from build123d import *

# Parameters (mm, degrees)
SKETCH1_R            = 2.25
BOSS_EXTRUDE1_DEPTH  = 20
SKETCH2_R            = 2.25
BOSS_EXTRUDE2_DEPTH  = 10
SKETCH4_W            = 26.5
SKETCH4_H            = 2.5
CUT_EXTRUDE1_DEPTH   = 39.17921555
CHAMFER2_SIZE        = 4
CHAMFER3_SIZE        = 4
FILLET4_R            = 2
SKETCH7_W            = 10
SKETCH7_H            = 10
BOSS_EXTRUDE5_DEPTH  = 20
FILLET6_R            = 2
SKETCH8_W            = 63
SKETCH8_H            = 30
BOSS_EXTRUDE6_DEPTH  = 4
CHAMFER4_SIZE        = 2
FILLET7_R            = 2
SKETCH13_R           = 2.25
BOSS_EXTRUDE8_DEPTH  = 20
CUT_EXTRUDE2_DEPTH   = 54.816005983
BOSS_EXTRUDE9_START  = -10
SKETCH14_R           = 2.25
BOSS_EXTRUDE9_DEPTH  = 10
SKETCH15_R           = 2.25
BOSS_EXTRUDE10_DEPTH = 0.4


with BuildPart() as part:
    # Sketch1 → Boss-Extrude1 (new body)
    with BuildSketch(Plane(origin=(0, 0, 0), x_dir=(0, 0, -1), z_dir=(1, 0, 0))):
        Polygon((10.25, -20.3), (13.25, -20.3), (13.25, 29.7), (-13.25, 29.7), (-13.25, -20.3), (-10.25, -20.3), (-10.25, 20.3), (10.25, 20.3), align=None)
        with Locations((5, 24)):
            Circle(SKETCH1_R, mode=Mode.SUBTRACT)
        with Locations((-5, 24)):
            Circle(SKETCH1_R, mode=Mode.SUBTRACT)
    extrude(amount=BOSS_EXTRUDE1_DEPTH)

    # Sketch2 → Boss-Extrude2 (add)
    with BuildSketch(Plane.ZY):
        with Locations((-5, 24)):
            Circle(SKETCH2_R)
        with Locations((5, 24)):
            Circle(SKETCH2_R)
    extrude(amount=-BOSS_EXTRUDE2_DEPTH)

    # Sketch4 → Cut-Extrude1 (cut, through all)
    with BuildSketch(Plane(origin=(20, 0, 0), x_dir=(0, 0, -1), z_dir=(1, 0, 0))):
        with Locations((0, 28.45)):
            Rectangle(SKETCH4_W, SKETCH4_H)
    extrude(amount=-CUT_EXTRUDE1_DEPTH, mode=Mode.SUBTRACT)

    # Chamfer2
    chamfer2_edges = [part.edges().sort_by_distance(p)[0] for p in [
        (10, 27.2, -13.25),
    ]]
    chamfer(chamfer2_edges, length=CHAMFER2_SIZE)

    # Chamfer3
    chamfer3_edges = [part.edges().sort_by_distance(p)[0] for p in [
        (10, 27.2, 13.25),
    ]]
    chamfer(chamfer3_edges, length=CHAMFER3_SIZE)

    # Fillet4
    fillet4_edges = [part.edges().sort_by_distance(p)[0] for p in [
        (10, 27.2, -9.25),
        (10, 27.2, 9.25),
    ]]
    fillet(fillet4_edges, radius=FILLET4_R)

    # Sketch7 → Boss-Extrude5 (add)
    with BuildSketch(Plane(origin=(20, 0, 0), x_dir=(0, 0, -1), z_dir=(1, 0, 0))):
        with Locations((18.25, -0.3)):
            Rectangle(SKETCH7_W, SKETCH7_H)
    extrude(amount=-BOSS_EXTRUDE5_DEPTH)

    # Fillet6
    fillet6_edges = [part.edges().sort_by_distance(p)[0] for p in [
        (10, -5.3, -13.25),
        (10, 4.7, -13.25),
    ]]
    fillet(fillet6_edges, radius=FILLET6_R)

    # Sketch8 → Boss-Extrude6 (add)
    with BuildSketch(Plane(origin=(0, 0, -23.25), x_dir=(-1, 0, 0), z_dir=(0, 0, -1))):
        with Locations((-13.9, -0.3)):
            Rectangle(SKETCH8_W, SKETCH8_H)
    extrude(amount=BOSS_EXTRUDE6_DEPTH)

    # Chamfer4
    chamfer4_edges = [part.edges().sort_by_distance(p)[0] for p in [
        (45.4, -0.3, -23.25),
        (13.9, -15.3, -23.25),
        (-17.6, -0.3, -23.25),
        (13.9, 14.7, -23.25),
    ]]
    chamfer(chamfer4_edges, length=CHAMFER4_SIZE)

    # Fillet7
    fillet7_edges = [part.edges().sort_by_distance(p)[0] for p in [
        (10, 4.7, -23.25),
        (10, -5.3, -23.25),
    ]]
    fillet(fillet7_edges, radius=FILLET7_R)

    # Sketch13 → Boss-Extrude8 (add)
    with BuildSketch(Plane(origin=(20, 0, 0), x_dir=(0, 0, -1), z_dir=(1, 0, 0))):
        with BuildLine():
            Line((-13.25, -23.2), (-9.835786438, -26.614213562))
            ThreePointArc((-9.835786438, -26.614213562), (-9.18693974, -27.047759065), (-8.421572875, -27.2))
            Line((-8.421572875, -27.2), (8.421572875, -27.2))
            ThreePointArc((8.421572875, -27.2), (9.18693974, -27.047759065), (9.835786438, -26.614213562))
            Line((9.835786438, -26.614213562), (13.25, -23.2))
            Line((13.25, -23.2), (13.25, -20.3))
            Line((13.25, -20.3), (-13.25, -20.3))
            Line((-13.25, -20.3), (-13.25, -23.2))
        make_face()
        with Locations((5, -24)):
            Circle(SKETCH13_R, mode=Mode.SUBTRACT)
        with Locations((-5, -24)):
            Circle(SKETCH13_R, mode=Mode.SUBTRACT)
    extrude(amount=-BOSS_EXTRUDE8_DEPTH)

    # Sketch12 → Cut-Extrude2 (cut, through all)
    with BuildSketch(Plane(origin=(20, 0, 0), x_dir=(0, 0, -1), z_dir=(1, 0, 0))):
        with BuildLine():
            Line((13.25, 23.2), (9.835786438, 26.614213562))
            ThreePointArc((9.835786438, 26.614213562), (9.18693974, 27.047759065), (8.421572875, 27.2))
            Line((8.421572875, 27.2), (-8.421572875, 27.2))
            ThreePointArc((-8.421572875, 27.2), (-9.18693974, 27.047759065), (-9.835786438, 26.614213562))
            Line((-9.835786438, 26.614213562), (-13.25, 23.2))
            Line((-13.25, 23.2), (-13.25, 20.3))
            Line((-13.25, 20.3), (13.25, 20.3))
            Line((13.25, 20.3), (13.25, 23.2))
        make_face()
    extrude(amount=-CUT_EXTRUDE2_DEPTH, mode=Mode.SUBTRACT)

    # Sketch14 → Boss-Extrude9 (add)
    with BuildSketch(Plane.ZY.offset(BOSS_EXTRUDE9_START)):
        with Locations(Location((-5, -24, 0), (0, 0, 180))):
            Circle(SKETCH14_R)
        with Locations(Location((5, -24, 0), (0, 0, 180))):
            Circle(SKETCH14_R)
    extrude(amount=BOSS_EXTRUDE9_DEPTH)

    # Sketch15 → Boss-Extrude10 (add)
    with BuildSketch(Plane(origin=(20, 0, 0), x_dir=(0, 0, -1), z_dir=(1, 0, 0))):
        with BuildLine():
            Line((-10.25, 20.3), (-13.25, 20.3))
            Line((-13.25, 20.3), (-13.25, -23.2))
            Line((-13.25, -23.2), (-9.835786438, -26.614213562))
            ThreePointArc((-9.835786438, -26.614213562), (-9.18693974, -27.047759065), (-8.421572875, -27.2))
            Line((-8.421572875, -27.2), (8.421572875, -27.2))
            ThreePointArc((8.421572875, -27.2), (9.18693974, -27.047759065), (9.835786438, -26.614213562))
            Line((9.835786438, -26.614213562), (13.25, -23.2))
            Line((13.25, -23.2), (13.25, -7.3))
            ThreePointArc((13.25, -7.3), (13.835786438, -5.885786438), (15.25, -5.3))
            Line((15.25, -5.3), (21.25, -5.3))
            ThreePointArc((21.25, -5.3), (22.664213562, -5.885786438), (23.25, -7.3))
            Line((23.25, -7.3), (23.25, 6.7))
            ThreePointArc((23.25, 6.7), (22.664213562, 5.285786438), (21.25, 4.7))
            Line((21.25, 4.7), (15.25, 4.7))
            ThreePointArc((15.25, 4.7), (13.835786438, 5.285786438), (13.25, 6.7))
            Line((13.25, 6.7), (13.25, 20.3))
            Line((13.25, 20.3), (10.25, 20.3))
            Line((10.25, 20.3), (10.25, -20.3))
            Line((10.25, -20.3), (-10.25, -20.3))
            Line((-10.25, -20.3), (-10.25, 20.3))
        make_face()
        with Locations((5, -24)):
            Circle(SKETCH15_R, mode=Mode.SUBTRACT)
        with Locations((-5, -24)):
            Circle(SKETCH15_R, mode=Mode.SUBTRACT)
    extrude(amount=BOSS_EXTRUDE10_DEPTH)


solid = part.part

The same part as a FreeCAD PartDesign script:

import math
import FreeCAD as App
import Part
import Sketcher

V = App.Vector
Q = App.Units.Quantity


def edges_at(feature, points):
    """Names of the edges that pass closest to the given points."""
    edges = feature.Shape.Edges
    near = lambda p: min(range(len(edges)), key=lambda i: edges[i].distToShape(Part.Vertex(*p))[0])
    return sorted({f"Edge{near(p) + 1}" for p in points})

doc = App.newDocument("Part")
body = doc.addObject("PartDesign::Body", "Body")

sketch1 = body.newObject("Sketcher::SketchObject", "Sketch")
sketch1.AttachmentSupport = (doc.getObject("YZ_Plane"), [""])
sketch1.MapMode = "FlatFace"
sketch1.addGeometry([
    Part.LineSegment(V(-20.3, -10.25, 0), V(-20.3, -13.25, 0)),
    Part.LineSegment(V(-20.3, -13.25, 0), V(29.7, -13.25, 0)),
    Part.LineSegment(V(29.7, -13.25, 0), V(29.7, 13.25, 0)),
    Part.LineSegment(V(29.7, 13.25, 0), V(-20.3, 13.25, 0)),
    Part.LineSegment(V(-20.3, 13.25, 0), V(-20.3, 10.25, 0)),
    Part.LineSegment(V(-20.3, 10.25, 0), V(20.3, 10.25, 0)),
    Part.LineSegment(V(20.3, 10.25, 0), V(20.3, -10.25, 0)),
    Part.LineSegment(V(20.3, -10.25, 0), V(-20.3, -10.25, 0)),
    Part.Circle(V(24, 5, 0), V(0, 0, 1), 2.25),
    Part.Circle(V(24, -5, 0), V(0, 0, 1), 2.25),
], False)
sketch1.addConstraint([
    Sketcher.Constraint("Coincident", 0, 2, 1, 1),
    Sketcher.Constraint("Coincident", 1, 2, 2, 1),
    Sketcher.Constraint("Coincident", 2, 2, 3, 1),
    Sketcher.Constraint("Coincident", 3, 2, 4, 1),
    Sketcher.Constraint("Coincident", 4, 2, 5, 1),
    Sketcher.Constraint("Coincident", 5, 2, 6, 1),
    Sketcher.Constraint("Coincident", 6, 2, 7, 1),
    Sketcher.Constraint("Coincident", 7, 2, 0, 1),
    Sketcher.Constraint("Vertical", 0),
    Sketcher.Constraint("Horizontal", 1),
    Sketcher.Constraint("Vertical", 2),
    Sketcher.Constraint("Horizontal", 3),
    Sketcher.Constraint("Vertical", 4),
    Sketcher.Constraint("Horizontal", 5),
    Sketcher.Constraint("Vertical", 6),
    Sketcher.Constraint("Horizontal", 7),
    Sketcher.Constraint("Equal", 8, 9),
    Sketcher.Constraint("Symmetric", 4, 2, 6, 2, -1, 1),
    Sketcher.Constraint("Symmetric", 8, 3, 9, 3, -1),
    Sketcher.Constraint("Symmetric", 0, 2, 3, 2, -1),
    Sketcher.Constraint("Diameter", 8, Q("4.5 mm")),
    Sketcher.Constraint("DistanceX", 1, 1, 1, 2, Q("50 mm")),
    Sketcher.Constraint("DistanceY", 0, 2, 0, 1, Q("3 mm")),
    Sketcher.Constraint("DistanceX", 5, 1, 5, 2, Q("40.6 mm")),
    Sketcher.Constraint("DistanceY", 2, 1, 2, 2, Q("26.5 mm")),
    Sketcher.Constraint("DistanceX", -1, 1, 8, 3, Q("24 mm")),
    Sketcher.Constraint("DistanceY", -1, 1, 8, 3, Q("5 mm")),
])
pad1 = body.newObject("PartDesign::Pad", "Pad")
pad1.Profile = sketch1
pad1.Length = 20

sketch2 = body.newObject("Sketcher::SketchObject", "Sketch001")
sketch2.AttachmentSupport = (doc.getObject("YZ_Plane"), [""])
sketch2.MapMode = "FlatFace"
sketch2.addGeometry([
    Part.Circle(V(24, -5, 0), V(0, 0, 1), 2.25),
    Part.Circle(V(24, 5, 0), V(0, 0, 1), 2.25),
], False)
sketch2.addConstraint([
    Sketcher.Constraint("Equal", 0, 1),
    Sketcher.Constraint("Symmetric", 0, 3, 1, 3, -1),
    Sketcher.Constraint("Diameter", 0, Q("4.5 mm")),
    Sketcher.Constraint("DistanceX", -1, 1, 0, 3, Q("24 mm")),
    Sketcher.Constraint("DistanceY", 0, 3, -1, 1, Q("5 mm")),
])
pad2 = body.newObject("PartDesign::Pad", "Pad001")
pad2.Profile = sketch2
pad2.Length = 10

sketch3 = body.newObject("Sketcher::SketchObject", "Sketch002")
sketch3.AttachmentSupport = (doc.getObject("YZ_Plane"), [""])
sketch3.MapMode = "FlatFace"
sketch3.AttachmentOffset = App.Placement(V(0, 0, 20), App.Rotation())
sketch3.addGeometry([
    Part.LineSegment(V(29.7, 13.25, 0), V(27.2, 13.25, 0)),
    Part.LineSegment(V(27.2, 13.25, 0), V(27.2, -13.25, 0)),
    Part.LineSegment(V(27.2, -13.25, 0), V(29.7, -13.25, 0)),
    Part.LineSegment(V(29.7, -13.25, 0), V(29.7, 13.25, 0)),
], False)
sketch3.addConstraint([
    Sketcher.Constraint("Coincident", 0, 2, 1, 1),
    Sketcher.Constraint("Coincident", 1, 2, 2, 1),
    Sketcher.Constraint("Coincident", 2, 2, 3, 1),
    Sketcher.Constraint("Coincident", 3, 2, 0, 1),
    Sketcher.Constraint("Horizontal", 0),
    Sketcher.Constraint("Vertical", 1),
    Sketcher.Constraint("Horizontal", 2),
    Sketcher.Constraint("Vertical", 3),
    Sketcher.Constraint("DistanceX", 0, 2, 0, 1, Q("2.5 mm")),
    Sketcher.Constraint("DistanceY", 1, 2, 1, 1, Q("26.5 mm")),
    Sketcher.Constraint("DistanceX", -1, 1, 0, 2, Q("27.2 mm")),
    Sketcher.Constraint("DistanceY", -1, 1, 0, 2, Q("13.25 mm")),
])
pocket1 = body.newObject("PartDesign::Pocket", "Pocket")
pocket1.Profile = sketch3
pocket1.Type = "ThroughAll"
doc.recompute()

chamfer = body.newObject("PartDesign::Chamfer", "Chamfer")
chamfer.Base = (pocket1, edges_at(pocket1, [(10, 27.2, -13.25)]))
chamfer.Size = 4
doc.recompute()

chamfer2 = body.newObject("PartDesign::Chamfer", "Chamfer001")
chamfer2.Base = (chamfer, edges_at(chamfer, [(10, 27.2, 13.25)]))
chamfer2.Size = 4
doc.recompute()

fillet = body.newObject("PartDesign::Fillet", "Fillet")
fillet.Base = (chamfer2, edges_at(chamfer2, [(10, 27.2, -9.25), (10, 27.2, 9.25)]))
fillet.Radius = 2

sketch4 = body.newObject("Sketcher::SketchObject", "Sketch003")
sketch4.AttachmentSupport = (doc.getObject("YZ_Plane"), [""])
sketch4.MapMode = "FlatFace"
sketch4.AttachmentOffset = App.Placement(V(0, 0, 20), App.Rotation())
sketch4.addGeometry([
    Part.LineSegment(V(4.7, -13.25, 0), V(-5.3, -13.25, 0)),
    Part.LineSegment(V(-5.3, -13.25, 0), V(-5.3, -23.25, 0)),
    Part.LineSegment(V(-5.3, -23.25, 0), V(4.7, -23.25, 0)),
    Part.LineSegment(V(4.7, -23.25, 0), V(4.7, -13.25, 0)),
], False)
sketch4.addConstraint([
    Sketcher.Constraint("Coincident", 0, 2, 1, 1),
    Sketcher.Constraint("Coincident", 1, 2, 2, 1),
    Sketcher.Constraint("Coincident", 2, 2, 3, 1),
    Sketcher.Constraint("Coincident", 3, 2, 0, 1),
    Sketcher.Constraint("Horizontal", 0),
    Sketcher.Constraint("Vertical", 1),
    Sketcher.Constraint("Horizontal", 2),
    Sketcher.Constraint("Vertical", 3),
    Sketcher.Constraint("Equal", 2, 1),
    Sketcher.Constraint("DistanceX", 0, 2, 0, 1, Q("10 mm")),
    Sketcher.Constraint("DistanceX", 0, 2, -1, 1, Q("5.3 mm")),
    Sketcher.Constraint("DistanceY", 0, 2, -1, 1, Q("13.25 mm")),
])
pad3 = body.newObject("PartDesign::Pad", "Pad002")
pad3.Profile = sketch4
pad3.Length = 20
pad3.Reversed = True
doc.recompute()

fillet2 = body.newObject("PartDesign::Fillet", "Fillet001")
fillet2.Base = (pad3, edges_at(pad3, [(10, -5.3, -13.25), (10, 4.7, -13.25)]))
fillet2.Radius = 2

sketch5 = body.newObject("Sketcher::SketchObject", "Sketch004")
sketch5.AttachmentSupport = (doc.getObject("XY_Plane"), [""])
sketch5.MapMode = "FlatFace"
sketch5.AttachmentOffset = App.Placement(V(0, 0, -23.25), App.Rotation())
sketch5.addGeometry([
    Part.LineSegment(V(45.4, 14.7, 0), V(45.4, -15.3, 0)),
    Part.LineSegment(V(45.4, -15.3, 0), V(-17.6, -15.3, 0)),
    Part.LineSegment(V(-17.6, -15.3, 0), V(-17.6, 14.7, 0)),
    Part.LineSegment(V(-17.6, 14.7, 0), V(45.4, 14.7, 0)),
], False)
sketch5.addConstraint([
    Sketcher.Constraint("Coincident", 0, 2, 1, 1),
    Sketcher.Constraint("Coincident", 1, 2, 2, 1),
    Sketcher.Constraint("Coincident", 2, 2, 3, 1),
    Sketcher.Constraint("Coincident", 3, 2, 0, 1),
    Sketcher.Constraint("Vertical", 0),
    Sketcher.Constraint("Horizontal", 1),
    Sketcher.Constraint("Vertical", 2),
    Sketcher.Constraint("Horizontal", 3),
    Sketcher.Constraint("DistanceX", 1, 2, 1, 1, Q("63 mm")),
    Sketcher.Constraint("DistanceY", 0, 2, 0, 1, Q("30 mm")),
    Sketcher.Constraint("DistanceX", -1, 1, 0, 2, Q("45.4 mm")),
    Sketcher.Constraint("DistanceY", 0, 2, -1, 1, Q("15.3 mm")),
])
pad4 = body.newObject("PartDesign::Pad", "Pad003")
pad4.Profile = sketch5
pad4.Length = 4
pad4.Reversed = True
doc.recompute()

chamfer3 = body.newObject("PartDesign::Chamfer", "Chamfer002")
chamfer3.Base = (pad4, edges_at(pad4, [
    (45.4, -0.3, -23.25),
    (13.9, -15.3, -23.25),
    (-17.6, -0.3, -23.25),
    (13.9, 14.7, -23.25),
]))
chamfer3.Size = 2
doc.recompute()

fillet3 = body.newObject("PartDesign::Fillet", "Fillet002")
fillet3.Base = (chamfer3, edges_at(chamfer3, [(10, 4.7, -23.25), (10, -5.3, -23.25)]))
fillet3.Radius = 2

sketch6 = body.newObject("Sketcher::SketchObject", "Sketch005")
sketch6.AttachmentSupport = (doc.getObject("YZ_Plane"), [""])
sketch6.MapMode = "FlatFace"
sketch6.AttachmentOffset = App.Placement(V(0, 0, 20), App.Rotation())
sketch6.addGeometry([
    Part.LineSegment(V(-23.2, 13.25, 0), V(-26.614214, 9.835786, 0)),
    Part.ArcOfCircle(Part.Circle(V(-25.2, 8.421573, 0), V(0, 0, 1), 2), math.radians(135), math.radians(180)),
    Part.LineSegment(V(-27.2, 8.421573, 0), V(-27.2, -8.421573, 0)),
    Part.ArcOfCircle(Part.Circle(V(-25.2, -8.421573, 0), V(0, 0, 1), 2), math.radians(180), math.radians(225)),
    Part.LineSegment(V(-26.614214, -9.835786, 0), V(-23.2, -13.25, 0)),
    Part.LineSegment(V(-23.2, -13.25, 0), V(-20.3, -13.25, 0)),
    Part.LineSegment(V(-20.3, -13.25, 0), V(-20.3, 13.25, 0)),
    Part.LineSegment(V(-20.3, 13.25, 0), V(-23.2, 13.25, 0)),
    Part.Circle(V(-24, 5, 0), V(0, 0, 1), 2.25),
    Part.Circle(V(-24, -5, 0), V(0, 0, 1), 2.25),
], False)
sketch6.addConstraint([
    Sketcher.Constraint("Tangent", 0, 2, 1, 1),
    Sketcher.Constraint("Tangent", 1, 2, 2, 1),
    Sketcher.Constraint("Tangent", 2, 2, 3, 1),
    Sketcher.Constraint("Tangent", 3, 2, 4, 1),
    Sketcher.Constraint("Coincident", 4, 2, 5, 1),
    Sketcher.Constraint("Coincident", 5, 2, 6, 1),
    Sketcher.Constraint("Coincident", 6, 2, 7, 1),
    Sketcher.Constraint("Coincident", 7, 2, 0, 1),
    Sketcher.Constraint("Vertical", 2),
    Sketcher.Constraint("Horizontal", 5),
    Sketcher.Constraint("Vertical", 6),
    Sketcher.Constraint("Horizontal", 7),
    Sketcher.Constraint("Equal", 1, 3),
    Sketcher.Constraint("Equal", 8, 9),
    Sketcher.Constraint("Symmetric", 8, 3, 9, 3, -1),
    Sketcher.Constraint("Symmetric", 0, 2, 3, 2, -1),
    Sketcher.Constraint("Perpendicular", 0, 4),
    Sketcher.Constraint("Vertical", 4, 2, 7, 2),
    Sketcher.Constraint("Radius", 1, Q("2 mm")),
    Sketcher.Constraint("Diameter", 8, Q("4.5 mm")),
    Sketcher.Constraint("DistanceX", 5, 1, 5, 2, Q("2.9 mm")),
    Sketcher.Constraint("DistanceY", 6, 1, 6, 2, Q("26.5 mm")),
    Sketcher.Constraint("DistanceX", 8, 3, -1, 1, Q("24 mm")),
    Sketcher.Constraint("DistanceY", -1, 1, 8, 3, Q("5 mm")),
    Sketcher.Constraint("DistanceX", 3, 3, 4, 2, Q("2 mm")),
    Sketcher.Constraint("DistanceX", 1, 3, -1, 1, Q("25.2 mm")),
])
pad5 = body.newObject("PartDesign::Pad", "Pad004")
pad5.Profile = sketch6
pad5.Length = 20
pad5.Reversed = True

sketch7 = body.newObject("Sketcher::SketchObject", "Sketch006")
sketch7.AttachmentSupport = (doc.getObject("YZ_Plane"), [""])
sketch7.MapMode = "FlatFace"
sketch7.AttachmentOffset = App.Placement(V(0, 0, 20), App.Rotation())
sketch7.addGeometry([
    Part.LineSegment(V(23.2, -13.25, 0), V(26.614214, -9.835786, 0)),
    Part.ArcOfCircle(Part.Circle(V(25.2, -8.421573, 0), V(0, 0, 1), 2), math.radians(-45), math.radians(0)),
    Part.LineSegment(V(27.2, -8.421573, 0), V(27.2, 8.421573, 0)),
    Part.ArcOfCircle(Part.Circle(V(25.2, 8.421573, 0), V(0, 0, 1), 2), math.radians(0), math.radians(45)),
    Part.LineSegment(V(26.614214, 9.835786, 0), V(23.2, 13.25, 0)),
    Part.LineSegment(V(23.2, 13.25, 0), V(20.3, 13.25, 0)),
    Part.LineSegment(V(20.3, 13.25, 0), V(20.3, -13.25, 0)),
    Part.LineSegment(V(20.3, -13.25, 0), V(23.2, -13.25, 0)),
], False)
sketch7.addConstraint([
    Sketcher.Constraint("Tangent", 0, 2, 1, 1),
    Sketcher.Constraint("Tangent", 1, 2, 2, 1),
    Sketcher.Constraint("Tangent", 2, 2, 3, 1),
    Sketcher.Constraint("Tangent", 3, 2, 4, 1),
    Sketcher.Constraint("Coincident", 4, 2, 5, 1),
    Sketcher.Constraint("Coincident", 5, 2, 6, 1),
    Sketcher.Constraint("Coincident", 6, 2, 7, 1),
    Sketcher.Constraint("Coincident", 7, 2, 0, 1),
    Sketcher.Constraint("Vertical", 2),
    Sketcher.Constraint("Horizontal", 5),
    Sketcher.Constraint("Vertical", 6),
    Sketcher.Constraint("Horizontal", 7),
    Sketcher.Constraint("Equal", 1, 3),
    Sketcher.Constraint("Symmetric", 0, 2, 3, 2, -1),
    Sketcher.Constraint("Perpendicular", 0, 4),
    Sketcher.Constraint("Vertical", 4, 2, 7, 2),
    Sketcher.Constraint("Radius", 1, Q("2 mm")),
    Sketcher.Constraint("DistanceX", 5, 2, 5, 1, Q("2.9 mm")),
    Sketcher.Constraint("DistanceY", 6, 2, 6, 1, Q("26.5 mm")),
    Sketcher.Constraint("DistanceX", 4, 2, 3, 3, Q("2 mm")),
    Sketcher.Constraint("DistanceX", -1, 1, 1, 3, Q("25.2 mm")),
])
pocket2 = body.newObject("PartDesign::Pocket", "Pocket001")
pocket2.Profile = sketch7
pocket2.Type = "ThroughAll"

sketch8 = body.newObject("Sketcher::SketchObject", "Sketch007")
sketch8.AttachmentSupport = (doc.getObject("YZ_Plane"), [""])
sketch8.MapMode = "FlatFace"
sketch8.AttachmentOffset = App.Placement(V(0, 0, 10), App.Rotation())
sketch8.addGeometry([
    Part.Circle(V(-24, -5, 0), V(0, 0, 1), 2.25),
    Part.Circle(V(-24, 5, 0), V(0, 0, 1), 2.25),
], False)
sketch8.addConstraint([
    Sketcher.Constraint("Equal", 0, 1),
    Sketcher.Constraint("Symmetric", 0, 3, 1, 3, -1),
    Sketcher.Constraint("Diameter", 0, Q("4.5 mm")),
    Sketcher.Constraint("DistanceX", 0, 3, -1, 1, Q("24 mm")),
    Sketcher.Constraint("DistanceY", 0, 3, -1, 1, Q("5 mm")),
])
pad6 = body.newObject("PartDesign::Pad", "Pad005")
pad6.Profile = sketch8
pad6.Length = 10
pad6.Reversed = True

sketch9 = body.newObject("Sketcher::SketchObject", "Sketch008")
sketch9.AttachmentSupport = (doc.getObject("YZ_Plane"), [""])
sketch9.MapMode = "FlatFace"
sketch9.AttachmentOffset = App.Placement(V(0, 0, 20), App.Rotation())
sketch9.addGeometry([
    Part.LineSegment(V(20.3, 10.25, 0), V(20.3, 13.25, 0)),
    Part.LineSegment(V(20.3, 13.25, 0), V(-23.2, 13.25, 0)),
    Part.LineSegment(V(-23.2, 13.25, 0), V(-26.614214, 9.835786, 0)),
    Part.ArcOfCircle(Part.Circle(V(-25.2, 8.421573, 0), V(0, 0, 1), 2), math.radians(135), math.radians(180)),
    Part.LineSegment(V(-27.2, 8.421573, 0), V(-27.2, -8.421573, 0)),
    Part.ArcOfCircle(Part.Circle(V(-25.2, -8.421573, 0), V(0, 0, 1), 2), math.radians(180), math.radians(225)),
    Part.LineSegment(V(-26.614214, -9.835786, 0), V(-23.2, -13.25, 0)),
    Part.LineSegment(V(-23.2, -13.25, 0), V(-7.3, -13.25, 0)),
    Part.ArcOfCircle(Part.Circle(V(-7.3, -15.25, 0), V(0, 0, 1), 2), math.radians(0), math.radians(90)),
    Part.LineSegment(V(-5.3, -15.25, 0), V(-5.3, -21.25, 0)),
    Part.ArcOfCircle(Part.Circle(V(-7.3, -21.25, 0), V(0, 0, 1), 2), math.radians(-90), math.radians(0)),
    Part.LineSegment(V(-7.3, -23.25, 0), V(6.7, -23.25, 0)),
    Part.ArcOfCircle(Part.Circle(V(6.7, -21.25, 0), V(0, 0, 1), 2), math.radians(-180), math.radians(-90)),
    Part.LineSegment(V(4.7, -21.25, 0), V(4.7, -15.25, 0)),
    Part.ArcOfCircle(Part.Circle(V(6.7, -15.25, 0), V(0, 0, 1), 2), math.radians(90), math.radians(180)),
    Part.LineSegment(V(6.7, -13.25, 0), V(20.3, -13.25, 0)),
    Part.LineSegment(V(20.3, -13.25, 0), V(20.3, -10.25, 0)),
    Part.LineSegment(V(20.3, -10.25, 0), V(-20.3, -10.25, 0)),
    Part.LineSegment(V(-20.3, -10.25, 0), V(-20.3, 10.25, 0)),
    Part.LineSegment(V(-20.3, 10.25, 0), V(20.3, 10.25, 0)),
    Part.Circle(V(-24, 5, 0), V(0, 0, 1), 2.25),
    Part.Circle(V(-24, -5, 0), V(0, 0, 1), 2.25),
], False)
sketch9.addConstraint([
    Sketcher.Constraint("Coincident", 0, 2, 1, 1),
    Sketcher.Constraint("Coincident", 1, 2, 2, 1),
    Sketcher.Constraint("Tangent", 2, 2, 3, 1),
    Sketcher.Constraint("Tangent", 3, 2, 4, 1),
    Sketcher.Constraint("Tangent", 4, 2, 5, 1),
    Sketcher.Constraint("Tangent", 5, 2, 6, 1),
    Sketcher.Constraint("Coincident", 6, 2, 7, 1),
    Sketcher.Constraint("Tangent", 7, 2, 8, 2),
    Sketcher.Constraint("Tangent", 8, 1, 9, 1),
    Sketcher.Constraint("Tangent", 9, 2, 10, 2),
    Sketcher.Constraint("Tangent", 10, 1, 11, 1),
    Sketcher.Constraint("Tangent", 11, 2, 12, 2),
    Sketcher.Constraint("Tangent", 12, 1, 13, 1),
    Sketcher.Constraint("Tangent", 13, 2, 14, 2),
    Sketcher.Constraint("Tangent", 14, 1, 15, 1),
    Sketcher.Constraint("Coincident", 15, 2, 16, 1),
    Sketcher.Constraint("Coincident", 16, 2, 17, 1),
    Sketcher.Constraint("Coincident", 17, 2, 18, 1),
    Sketcher.Constraint("Coincident", 18, 2, 19, 1),
    Sketcher.Constraint("Coincident", 19, 2, 0, 1),
    Sketcher.Constraint("Vertical", 0),
    Sketcher.Constraint("Horizontal", 1),
    Sketcher.Constraint("Vertical", 4),
    Sketcher.Constraint("Horizontal", 7),
    Sketcher.Constraint("Vertical", 9),
    Sketcher.Constraint("Horizontal", 11),
    Sketcher.Constraint("Vertical", 13),
    Sketcher.Constraint("Horizontal", 15),
    Sketcher.Constraint("Vertical", 16),
    Sketcher.Constraint("Horizontal", 17),
    Sketcher.Constraint("Vertical", 18),
    Sketcher.Constraint("Horizontal", 19),
    Sketcher.Constraint("Equal", 3, 5),
    Sketcher.Constraint("Equal", 5, 8),
    Sketcher.Constraint("Equal", 8, 10),
    Sketcher.Constraint("Equal", 10, 12),
    Sketcher.Constraint("Equal", 12, 14),
    Sketcher.Constraint("Equal", 20, 21),
    Sketcher.Constraint("Symmetric", 16, 2, 18, 2, -1, 1),
    Sketcher.Constraint("Symmetric", 20, 3, 21, 3, -1),
    Sketcher.Constraint("Symmetric", 2, 2, 5, 2, -1),
    Sketcher.Constraint("Symmetric", 0, 2, 15, 2, -1),
    Sketcher.Constraint("Perpendicular", 2, 6),
    Sketcher.Constraint("Horizontal", 8, 3, 14, 3),
    Sketcher.Constraint("Radius", 3, Q("2 mm")),
    Sketcher.Constraint("Diameter", 20, Q("4.5 mm")),
    Sketcher.Constraint("DistanceX", 11, 1, 11, 2, Q("14 mm")),
    Sketcher.Constraint("DistanceY", 0, 1, 0, 2, Q("3 mm")),
    Sketcher.Constraint("DistanceY", 9, 2, 9, 1, Q("6 mm")),
    Sketcher.Constraint("DistanceX", 1, 2, 1, 1, Q("43.5 mm")),
    Sketcher.Constraint("DistanceX", 7, 1, 7, 2, Q("15.9 mm")),
    Sketcher.Constraint("DistanceX", 17, 2, 17, 1, Q("40.6 mm")),
    Sketcher.Constraint("DistanceY", 18, 1, 18, 2, Q("20.5 mm")),
    Sketcher.Constraint("DistanceX", 20, 3, -1, 1, Q("24 mm")),
    Sketcher.Constraint("DistanceY", -1, 1, 20, 3, Q("5 mm")),
    Sketcher.Constraint("DistanceX", 3, 3, 1, 2, Q("2 mm")),
])
pad7 = body.newObject("PartDesign::Pad", "Pad006")
pad7.Profile = sketch9
pad7.Length = 0.4

doc.recompute()
